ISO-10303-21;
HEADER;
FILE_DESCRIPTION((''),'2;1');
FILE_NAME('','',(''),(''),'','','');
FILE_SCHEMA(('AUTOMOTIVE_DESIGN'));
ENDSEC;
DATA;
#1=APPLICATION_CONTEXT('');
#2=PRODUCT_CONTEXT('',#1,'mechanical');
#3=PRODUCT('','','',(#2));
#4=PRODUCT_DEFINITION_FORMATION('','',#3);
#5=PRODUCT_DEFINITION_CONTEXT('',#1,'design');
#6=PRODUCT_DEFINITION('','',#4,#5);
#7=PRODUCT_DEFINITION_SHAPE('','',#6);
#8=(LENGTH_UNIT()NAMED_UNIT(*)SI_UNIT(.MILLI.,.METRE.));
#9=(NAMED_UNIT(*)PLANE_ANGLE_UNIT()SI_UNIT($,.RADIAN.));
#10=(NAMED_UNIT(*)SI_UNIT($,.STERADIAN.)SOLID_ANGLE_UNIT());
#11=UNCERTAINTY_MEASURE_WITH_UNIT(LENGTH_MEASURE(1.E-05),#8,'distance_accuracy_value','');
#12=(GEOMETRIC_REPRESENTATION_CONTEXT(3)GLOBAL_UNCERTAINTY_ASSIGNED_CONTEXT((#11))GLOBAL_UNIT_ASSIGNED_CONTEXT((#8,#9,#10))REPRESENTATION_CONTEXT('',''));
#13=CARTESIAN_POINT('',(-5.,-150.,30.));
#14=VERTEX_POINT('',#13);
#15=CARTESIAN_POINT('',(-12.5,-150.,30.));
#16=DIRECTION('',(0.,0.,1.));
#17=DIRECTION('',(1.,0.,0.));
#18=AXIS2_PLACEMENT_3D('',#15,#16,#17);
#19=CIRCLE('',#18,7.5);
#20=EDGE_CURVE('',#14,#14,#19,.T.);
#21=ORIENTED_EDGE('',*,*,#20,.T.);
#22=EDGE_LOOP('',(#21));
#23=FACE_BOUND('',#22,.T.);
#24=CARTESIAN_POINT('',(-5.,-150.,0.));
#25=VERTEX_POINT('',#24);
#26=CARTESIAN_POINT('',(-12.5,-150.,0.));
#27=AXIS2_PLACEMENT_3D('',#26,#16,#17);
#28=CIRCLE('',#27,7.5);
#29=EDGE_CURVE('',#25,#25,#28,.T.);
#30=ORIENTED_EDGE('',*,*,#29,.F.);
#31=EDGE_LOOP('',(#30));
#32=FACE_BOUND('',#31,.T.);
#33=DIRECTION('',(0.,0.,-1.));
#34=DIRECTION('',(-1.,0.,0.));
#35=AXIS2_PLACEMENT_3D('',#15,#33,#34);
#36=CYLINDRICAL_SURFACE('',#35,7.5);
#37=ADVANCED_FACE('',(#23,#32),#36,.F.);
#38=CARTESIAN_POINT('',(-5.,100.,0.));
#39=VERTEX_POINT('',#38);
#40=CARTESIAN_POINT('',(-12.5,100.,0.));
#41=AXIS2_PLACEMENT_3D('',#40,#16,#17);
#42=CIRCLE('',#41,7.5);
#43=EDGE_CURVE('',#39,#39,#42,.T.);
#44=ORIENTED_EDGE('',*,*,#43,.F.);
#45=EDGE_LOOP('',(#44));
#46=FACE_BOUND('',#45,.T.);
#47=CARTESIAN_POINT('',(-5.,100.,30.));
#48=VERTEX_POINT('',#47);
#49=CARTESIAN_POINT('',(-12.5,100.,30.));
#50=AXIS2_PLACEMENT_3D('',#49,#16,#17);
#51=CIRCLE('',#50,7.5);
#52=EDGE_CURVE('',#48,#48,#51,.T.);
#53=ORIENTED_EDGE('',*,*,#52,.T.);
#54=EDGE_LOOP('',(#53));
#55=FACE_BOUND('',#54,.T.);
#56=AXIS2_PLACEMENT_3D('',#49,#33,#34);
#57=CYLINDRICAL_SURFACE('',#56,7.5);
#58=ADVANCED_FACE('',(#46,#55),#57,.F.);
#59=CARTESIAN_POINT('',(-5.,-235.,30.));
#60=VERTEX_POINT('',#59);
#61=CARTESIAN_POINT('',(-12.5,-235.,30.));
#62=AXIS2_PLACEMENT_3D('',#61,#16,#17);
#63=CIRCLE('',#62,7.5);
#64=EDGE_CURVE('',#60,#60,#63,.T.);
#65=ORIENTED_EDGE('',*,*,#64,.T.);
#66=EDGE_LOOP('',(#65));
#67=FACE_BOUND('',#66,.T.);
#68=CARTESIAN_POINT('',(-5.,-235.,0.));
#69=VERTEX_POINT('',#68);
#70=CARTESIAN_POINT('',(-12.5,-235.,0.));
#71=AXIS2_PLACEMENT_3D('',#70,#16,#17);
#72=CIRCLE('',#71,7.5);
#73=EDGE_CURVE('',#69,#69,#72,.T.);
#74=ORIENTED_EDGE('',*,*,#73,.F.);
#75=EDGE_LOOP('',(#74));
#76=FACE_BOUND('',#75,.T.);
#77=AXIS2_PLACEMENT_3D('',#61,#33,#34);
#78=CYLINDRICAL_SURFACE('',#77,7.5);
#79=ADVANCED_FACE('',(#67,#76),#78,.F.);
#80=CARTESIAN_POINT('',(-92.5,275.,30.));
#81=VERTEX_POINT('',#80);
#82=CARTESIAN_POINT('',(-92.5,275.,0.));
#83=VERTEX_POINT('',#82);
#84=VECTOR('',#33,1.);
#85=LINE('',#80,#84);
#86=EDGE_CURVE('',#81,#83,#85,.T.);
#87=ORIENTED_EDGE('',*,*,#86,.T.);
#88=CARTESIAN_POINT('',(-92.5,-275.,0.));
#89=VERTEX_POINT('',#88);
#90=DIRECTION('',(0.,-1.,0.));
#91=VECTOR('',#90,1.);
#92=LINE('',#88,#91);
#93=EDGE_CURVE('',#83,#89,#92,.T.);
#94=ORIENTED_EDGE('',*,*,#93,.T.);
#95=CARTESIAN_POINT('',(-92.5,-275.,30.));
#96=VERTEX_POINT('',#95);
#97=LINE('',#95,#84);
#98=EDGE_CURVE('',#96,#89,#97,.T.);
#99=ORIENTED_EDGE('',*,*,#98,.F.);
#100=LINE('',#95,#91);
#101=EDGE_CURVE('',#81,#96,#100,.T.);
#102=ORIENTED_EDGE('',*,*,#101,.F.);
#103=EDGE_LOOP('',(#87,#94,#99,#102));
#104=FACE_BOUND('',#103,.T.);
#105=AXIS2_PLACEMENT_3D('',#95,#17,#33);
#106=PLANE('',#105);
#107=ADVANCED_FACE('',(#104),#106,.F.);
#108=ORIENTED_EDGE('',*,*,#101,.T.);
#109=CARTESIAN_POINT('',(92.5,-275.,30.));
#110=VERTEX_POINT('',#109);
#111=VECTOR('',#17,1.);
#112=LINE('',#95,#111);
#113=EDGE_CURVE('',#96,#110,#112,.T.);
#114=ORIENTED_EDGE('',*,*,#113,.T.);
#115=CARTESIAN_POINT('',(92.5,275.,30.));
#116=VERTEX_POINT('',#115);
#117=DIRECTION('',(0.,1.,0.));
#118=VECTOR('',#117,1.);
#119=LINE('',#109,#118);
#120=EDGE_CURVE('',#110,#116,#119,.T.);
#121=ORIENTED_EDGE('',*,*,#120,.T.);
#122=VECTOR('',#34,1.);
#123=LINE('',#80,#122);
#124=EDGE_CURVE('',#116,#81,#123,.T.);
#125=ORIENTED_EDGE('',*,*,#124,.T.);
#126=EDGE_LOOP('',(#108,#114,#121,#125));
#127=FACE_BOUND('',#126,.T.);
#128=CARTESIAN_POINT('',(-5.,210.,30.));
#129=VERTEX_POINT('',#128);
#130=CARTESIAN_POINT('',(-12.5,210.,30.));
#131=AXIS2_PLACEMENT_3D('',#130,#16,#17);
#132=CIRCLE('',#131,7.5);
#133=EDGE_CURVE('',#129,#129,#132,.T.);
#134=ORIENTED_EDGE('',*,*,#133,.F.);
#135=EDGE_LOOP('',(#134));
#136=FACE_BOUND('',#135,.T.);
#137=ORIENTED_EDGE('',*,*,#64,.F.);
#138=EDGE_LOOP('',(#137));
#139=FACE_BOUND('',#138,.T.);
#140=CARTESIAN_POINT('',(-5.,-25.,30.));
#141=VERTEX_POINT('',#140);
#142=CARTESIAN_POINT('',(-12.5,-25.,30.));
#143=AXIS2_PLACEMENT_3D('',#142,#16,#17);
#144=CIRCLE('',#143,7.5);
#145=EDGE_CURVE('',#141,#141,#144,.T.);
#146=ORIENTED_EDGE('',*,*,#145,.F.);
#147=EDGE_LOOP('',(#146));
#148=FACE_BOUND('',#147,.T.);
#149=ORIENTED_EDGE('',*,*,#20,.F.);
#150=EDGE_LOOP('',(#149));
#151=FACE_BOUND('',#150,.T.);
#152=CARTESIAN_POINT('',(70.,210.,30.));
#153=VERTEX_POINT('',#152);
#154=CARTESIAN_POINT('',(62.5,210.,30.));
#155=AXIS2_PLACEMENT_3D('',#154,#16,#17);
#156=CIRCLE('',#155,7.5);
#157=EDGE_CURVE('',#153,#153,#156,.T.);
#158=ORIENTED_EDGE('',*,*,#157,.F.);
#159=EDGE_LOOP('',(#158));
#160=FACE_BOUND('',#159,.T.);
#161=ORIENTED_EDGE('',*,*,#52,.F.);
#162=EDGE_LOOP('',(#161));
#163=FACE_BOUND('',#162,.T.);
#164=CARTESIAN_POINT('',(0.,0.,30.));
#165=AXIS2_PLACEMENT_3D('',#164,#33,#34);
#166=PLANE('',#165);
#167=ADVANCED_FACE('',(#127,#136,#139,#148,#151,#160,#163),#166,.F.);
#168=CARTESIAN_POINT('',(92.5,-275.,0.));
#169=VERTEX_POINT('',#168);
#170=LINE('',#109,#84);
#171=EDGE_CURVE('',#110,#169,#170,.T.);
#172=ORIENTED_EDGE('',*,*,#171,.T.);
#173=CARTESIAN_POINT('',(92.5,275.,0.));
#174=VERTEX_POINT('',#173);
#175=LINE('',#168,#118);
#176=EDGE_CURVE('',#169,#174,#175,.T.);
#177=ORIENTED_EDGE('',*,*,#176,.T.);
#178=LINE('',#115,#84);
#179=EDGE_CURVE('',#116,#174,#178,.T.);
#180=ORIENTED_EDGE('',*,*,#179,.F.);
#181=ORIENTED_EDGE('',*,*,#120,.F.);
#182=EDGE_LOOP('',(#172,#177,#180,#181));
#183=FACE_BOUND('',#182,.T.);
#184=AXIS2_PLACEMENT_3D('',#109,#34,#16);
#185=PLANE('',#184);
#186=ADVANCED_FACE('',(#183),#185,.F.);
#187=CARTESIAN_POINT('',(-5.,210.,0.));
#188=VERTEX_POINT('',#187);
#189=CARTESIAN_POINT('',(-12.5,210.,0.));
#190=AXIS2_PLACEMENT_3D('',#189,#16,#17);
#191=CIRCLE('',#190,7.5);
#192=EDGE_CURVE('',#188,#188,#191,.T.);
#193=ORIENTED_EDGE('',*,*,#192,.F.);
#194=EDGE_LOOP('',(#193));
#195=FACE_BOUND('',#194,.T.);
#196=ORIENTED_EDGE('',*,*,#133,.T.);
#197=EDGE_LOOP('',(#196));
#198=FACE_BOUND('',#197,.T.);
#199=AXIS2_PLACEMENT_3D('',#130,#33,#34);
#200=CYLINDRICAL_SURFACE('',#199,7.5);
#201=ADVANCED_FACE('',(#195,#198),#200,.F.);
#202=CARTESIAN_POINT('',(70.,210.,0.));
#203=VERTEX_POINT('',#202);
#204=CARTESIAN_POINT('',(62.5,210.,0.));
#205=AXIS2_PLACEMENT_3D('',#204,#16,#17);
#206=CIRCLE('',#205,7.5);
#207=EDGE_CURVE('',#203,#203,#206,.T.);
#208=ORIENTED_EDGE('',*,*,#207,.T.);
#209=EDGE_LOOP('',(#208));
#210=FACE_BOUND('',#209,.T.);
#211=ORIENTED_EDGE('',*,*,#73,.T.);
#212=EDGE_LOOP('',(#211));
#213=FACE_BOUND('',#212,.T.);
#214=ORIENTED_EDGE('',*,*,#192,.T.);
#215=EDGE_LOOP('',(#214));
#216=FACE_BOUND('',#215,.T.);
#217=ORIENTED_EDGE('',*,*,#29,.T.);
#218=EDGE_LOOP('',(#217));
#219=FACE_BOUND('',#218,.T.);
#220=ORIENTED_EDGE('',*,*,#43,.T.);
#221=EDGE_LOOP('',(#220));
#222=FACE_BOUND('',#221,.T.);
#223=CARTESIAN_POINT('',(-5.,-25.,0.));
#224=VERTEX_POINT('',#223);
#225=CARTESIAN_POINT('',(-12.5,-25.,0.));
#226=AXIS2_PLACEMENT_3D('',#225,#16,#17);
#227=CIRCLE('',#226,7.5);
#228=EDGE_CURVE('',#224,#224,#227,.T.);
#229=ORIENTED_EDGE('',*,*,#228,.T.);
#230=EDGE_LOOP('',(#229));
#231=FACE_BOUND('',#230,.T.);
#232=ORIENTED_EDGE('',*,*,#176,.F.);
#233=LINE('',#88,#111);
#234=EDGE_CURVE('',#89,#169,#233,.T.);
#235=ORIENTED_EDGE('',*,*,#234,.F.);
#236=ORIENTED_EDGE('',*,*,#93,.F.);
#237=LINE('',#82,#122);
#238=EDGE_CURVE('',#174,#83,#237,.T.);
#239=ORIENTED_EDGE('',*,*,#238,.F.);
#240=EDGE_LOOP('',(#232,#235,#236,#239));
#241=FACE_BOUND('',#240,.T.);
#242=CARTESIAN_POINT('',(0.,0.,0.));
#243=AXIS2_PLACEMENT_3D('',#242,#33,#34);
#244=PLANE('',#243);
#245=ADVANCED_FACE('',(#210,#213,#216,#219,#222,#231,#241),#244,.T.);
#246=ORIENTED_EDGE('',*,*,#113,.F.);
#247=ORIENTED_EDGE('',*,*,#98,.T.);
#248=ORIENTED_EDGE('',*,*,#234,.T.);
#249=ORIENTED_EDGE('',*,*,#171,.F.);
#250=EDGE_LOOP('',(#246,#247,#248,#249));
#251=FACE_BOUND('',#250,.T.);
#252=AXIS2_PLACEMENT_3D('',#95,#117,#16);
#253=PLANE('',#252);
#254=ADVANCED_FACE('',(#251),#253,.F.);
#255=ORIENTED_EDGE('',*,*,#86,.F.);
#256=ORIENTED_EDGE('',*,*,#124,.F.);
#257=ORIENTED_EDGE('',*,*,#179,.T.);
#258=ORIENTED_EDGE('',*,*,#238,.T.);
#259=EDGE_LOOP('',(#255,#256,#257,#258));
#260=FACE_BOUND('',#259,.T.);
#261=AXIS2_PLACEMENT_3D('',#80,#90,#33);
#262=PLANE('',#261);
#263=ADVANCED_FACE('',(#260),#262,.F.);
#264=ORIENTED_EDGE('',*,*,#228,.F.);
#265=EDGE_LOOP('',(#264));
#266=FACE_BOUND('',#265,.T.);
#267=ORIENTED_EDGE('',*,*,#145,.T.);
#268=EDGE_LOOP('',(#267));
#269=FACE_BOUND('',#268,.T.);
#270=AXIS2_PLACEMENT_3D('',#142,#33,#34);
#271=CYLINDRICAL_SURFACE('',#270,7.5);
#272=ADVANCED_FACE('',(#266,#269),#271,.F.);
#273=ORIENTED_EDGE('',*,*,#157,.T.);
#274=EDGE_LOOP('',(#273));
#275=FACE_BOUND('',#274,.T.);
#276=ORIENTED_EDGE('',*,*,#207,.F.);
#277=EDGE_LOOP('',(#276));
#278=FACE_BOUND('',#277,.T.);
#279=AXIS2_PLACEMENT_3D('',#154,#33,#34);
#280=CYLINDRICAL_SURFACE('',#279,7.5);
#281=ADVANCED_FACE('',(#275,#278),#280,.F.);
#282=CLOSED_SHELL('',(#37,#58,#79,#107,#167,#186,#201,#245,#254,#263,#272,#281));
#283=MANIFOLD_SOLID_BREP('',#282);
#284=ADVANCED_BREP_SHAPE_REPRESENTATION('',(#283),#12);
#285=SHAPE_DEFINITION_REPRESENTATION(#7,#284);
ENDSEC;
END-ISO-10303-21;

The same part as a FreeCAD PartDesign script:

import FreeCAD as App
import Part
import Sketcher

V = App.Vector
Q = App.Units.Quantity


def add_polygon(sketch, points):
    """Adds a closed chain of lines whose ends are joined by coincident constraints."""
    first, n = sketch.GeometryCount, len(points)
    for a, b in zip(points, points[1:] + points[:1]):
        sketch.addGeometry(Part.LineSegment(App.Vector(*a, 0), App.Vector(*b, 0)), False)
    for i in range(n):
        sketch.addConstraint(Sketcher.Constraint("Coincident", first + i, 2, first + (i + 1) % n, 1))

doc = App.newDocument("Part")
body = doc.addObject("PartDesign::Body", "Body")

# Sketch on XY plane
sketch1 = doc.addObject("Sketcher::SketchObject", "Sketch")
body.addObject(sketch1)
sketch1.AttachmentSupport = (doc.XY_Plane, [""])
sketch1.MapMode = "FlatFace"
add_polygon(sketch1, [(-92, 275), (-92, -275), (92, -275), (92, 275)])  # lines 0-3
sketch1.addGeometry(Part.Circle(V(-12, -235, 0), V(0, 0, 1), 8), False)  # 4
sketch1.addGeometry(Part.Circle(V(-12, -150, 0), V(0, 0, 1), 8), False)  # 5
sketch1.addGeometry(Part.Circle(V(-12, -25, 0), V(0, 0, 1), 8), False)  # 6
sketch1.addGeometry(Part.Circle(V(-12, 100, 0), V(0, 0, 1), 8), False)  # 7
sketch1.addGeometry(Part.Circle(V(-12, 210, 0), V(0, 0, 1), 8), False)  # 8
sketch1.addGeometry(Part.Circle(V(62, 210, 0), V(0, 0, 1), 8), False)  # 9
sketch1.addConstraint(Sketcher.Constraint("Vertical", 0))
sketch1.addConstraint(Sketcher.Constraint("Horizontal", 1))
sketch1.addConstraint(Sketcher.Constraint("Vertical", 2))
sketch1.addConstraint(Sketcher.Constraint("Horizontal", 3))
sketch1.addConstraint(Sketcher.Constraint("Equal", 4, 5))
sketch1.addConstraint(Sketcher.Constraint("Equal", 5, 6))
sketch1.addConstraint(Sketcher.Constraint("Equal", 6, 7))
sketch1.addConstraint(Sketcher.Constraint("Equal", 7, 8))
sketch1.addConstraint(Sketcher.Constraint("Equal", 8, 9))
sketch1.addConstraint(Sketcher.Constraint("Symmetric", 0, 2, 2, 2, -1, 1))
sketch1.addConstraint(Sketcher.Constraint("Horizontal", 8, 3, 9, 3))
sketch1.addConstraint(Sketcher.Constraint("Vertical", 4, 3, 5, 3))
sketch1.addConstraint(Sketcher.Constraint("Vertical", 5, 3, 6, 3))
sketch1.addConstraint(Sketcher.Constraint("Vertical", 6, 3, 7, 3))
sketch1.addConstraint(Sketcher.Constraint("Vertical", 7, 3, 8, 3))
sketch1.addConstraint(Sketcher.Constraint("Diameter", 4, Q("15 mm")))
sketch1.addConstraint(Sketcher.Constraint("DistanceX", 1, 1, 1, 2, Q("185 mm")))
sketch1.addConstraint(Sketcher.Constraint("DistanceY", 0, 2, 0, 1, Q("550 mm")))
sketch1.addConstraint(Sketcher.Constraint("DistanceY", 4, 3, -1, 1, Q("235 mm")))
sketch1.addConstraint(Sketcher.Constraint("DistanceY", 5, 3, -1, 1, Q("150 mm")))
sketch1.addConstraint(Sketcher.Constraint("DistanceY", 6, 3, -1, 1, Q("25 mm")))
sketch1.addConstraint(Sketcher.Constraint("DistanceY", -1, 1, 7, 3, Q("100 mm")))
sketch1.addConstraint(Sketcher.Constraint("DistanceY", -1, 1, 8, 3, Q("210 mm")))
sketch1.addConstraint(Sketcher.Constraint("DistanceX", 8, 3, 9, 3, Q("75 mm")))
sketch1.addConstraint(Sketcher.Constraint("DistanceX", 0, 2, 4, 3, Q("80 mm")))
pad1 = doc.addObject("PartDesign::Pad", "Pad")
body.addObject(pad1)
pad1.Profile = sketch1
pad1.Length = 30

doc.recompute()
